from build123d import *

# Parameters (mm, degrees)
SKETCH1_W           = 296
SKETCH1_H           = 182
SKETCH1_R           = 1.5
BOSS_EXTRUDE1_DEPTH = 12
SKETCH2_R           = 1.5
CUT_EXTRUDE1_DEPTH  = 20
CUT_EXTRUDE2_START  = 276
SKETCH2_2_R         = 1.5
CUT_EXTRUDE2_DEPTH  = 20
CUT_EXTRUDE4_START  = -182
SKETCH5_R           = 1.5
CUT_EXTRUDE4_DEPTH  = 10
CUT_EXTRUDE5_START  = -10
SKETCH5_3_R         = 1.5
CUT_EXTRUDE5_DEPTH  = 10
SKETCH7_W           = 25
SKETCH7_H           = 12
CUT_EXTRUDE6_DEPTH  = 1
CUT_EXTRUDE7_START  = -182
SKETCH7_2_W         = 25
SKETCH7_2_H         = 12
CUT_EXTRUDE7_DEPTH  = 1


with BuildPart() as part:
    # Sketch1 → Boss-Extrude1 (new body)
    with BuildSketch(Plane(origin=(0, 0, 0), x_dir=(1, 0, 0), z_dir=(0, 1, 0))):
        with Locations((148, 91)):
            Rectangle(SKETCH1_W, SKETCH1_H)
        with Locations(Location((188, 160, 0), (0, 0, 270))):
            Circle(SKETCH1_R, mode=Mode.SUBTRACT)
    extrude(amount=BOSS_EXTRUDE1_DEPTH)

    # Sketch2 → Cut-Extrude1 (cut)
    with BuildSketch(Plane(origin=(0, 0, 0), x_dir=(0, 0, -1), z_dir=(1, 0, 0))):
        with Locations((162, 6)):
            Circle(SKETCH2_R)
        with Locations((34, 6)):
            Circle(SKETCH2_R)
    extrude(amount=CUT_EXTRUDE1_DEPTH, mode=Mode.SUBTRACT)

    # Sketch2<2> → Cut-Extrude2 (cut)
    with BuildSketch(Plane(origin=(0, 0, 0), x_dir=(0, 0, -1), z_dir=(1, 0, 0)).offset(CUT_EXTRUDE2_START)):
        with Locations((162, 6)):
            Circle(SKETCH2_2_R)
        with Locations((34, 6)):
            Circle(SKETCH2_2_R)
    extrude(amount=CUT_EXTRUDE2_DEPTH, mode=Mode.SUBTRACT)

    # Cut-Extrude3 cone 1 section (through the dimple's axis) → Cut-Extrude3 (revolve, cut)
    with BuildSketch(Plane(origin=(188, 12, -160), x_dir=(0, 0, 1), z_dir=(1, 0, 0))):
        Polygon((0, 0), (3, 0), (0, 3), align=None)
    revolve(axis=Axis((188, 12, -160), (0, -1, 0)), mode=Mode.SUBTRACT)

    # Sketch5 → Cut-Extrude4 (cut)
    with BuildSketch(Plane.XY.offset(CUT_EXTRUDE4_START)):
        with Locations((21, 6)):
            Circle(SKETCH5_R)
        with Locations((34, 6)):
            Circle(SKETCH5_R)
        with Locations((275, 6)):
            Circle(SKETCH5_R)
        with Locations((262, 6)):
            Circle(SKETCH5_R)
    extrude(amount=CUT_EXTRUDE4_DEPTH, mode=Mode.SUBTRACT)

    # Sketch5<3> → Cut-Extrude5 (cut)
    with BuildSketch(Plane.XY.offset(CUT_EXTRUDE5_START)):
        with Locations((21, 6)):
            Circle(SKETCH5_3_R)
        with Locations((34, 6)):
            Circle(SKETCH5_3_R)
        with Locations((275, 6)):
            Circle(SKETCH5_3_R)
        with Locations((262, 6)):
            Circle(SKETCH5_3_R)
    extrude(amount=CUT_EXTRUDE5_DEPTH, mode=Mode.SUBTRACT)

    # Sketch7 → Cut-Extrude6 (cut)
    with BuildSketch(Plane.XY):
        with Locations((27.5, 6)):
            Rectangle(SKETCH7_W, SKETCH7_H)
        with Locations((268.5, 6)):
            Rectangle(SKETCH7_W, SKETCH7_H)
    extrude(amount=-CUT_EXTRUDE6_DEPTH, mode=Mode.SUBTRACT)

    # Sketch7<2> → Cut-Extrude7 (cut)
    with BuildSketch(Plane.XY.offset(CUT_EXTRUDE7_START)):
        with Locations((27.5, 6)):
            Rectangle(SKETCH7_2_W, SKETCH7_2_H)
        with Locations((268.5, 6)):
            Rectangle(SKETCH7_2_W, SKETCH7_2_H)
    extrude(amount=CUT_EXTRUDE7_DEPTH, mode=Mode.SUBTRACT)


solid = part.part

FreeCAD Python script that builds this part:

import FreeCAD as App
import Part
import Sketcher

doc = App.newDocument("Part")
params = doc.addObject("Spreadsheet::Sheet", "Params")
for row, (alias, value) in enumerate([
    ("sketch1_diameter", "3 mm"),
    ("sketch1_width", "296 mm"),
    ("sketch1_height", "182 mm"),
    ("pad1_length", "12 mm"),
    ("sketch2_diameter", "3 mm"),
    ("pocket1_length", "20 mm"),
    ("sketch3_diameter", "3 mm"),
    ("pocket2_length", "20 mm"),
    ("sketch4_width", "3 mm"),
    ("groove_angle", "360 deg"),
    ("sketch5_diameter", "3 mm"),
    ("pocket3_length", "10 mm"),
    ("sketch6_diameter", "3 mm"),
    ("pocket4_length", "10 mm"),
    ("sketch7_width", "25 mm"),
    ("sketch7_height", "12 mm"),
    ("pocket5_length", "1 mm"),
    ("sketch8_width", "25 mm"),
    ("sketch8_height", "12 mm"),
    ("pocket6_length", "1 mm"),
], start=1):
    params.set(f"A{row}", alias)
    params.set(f"B{row}", "=" + value)
    params.setAlias(f"B{row}", alias)

body = doc.addObject("PartDesign::Body", "Body")

# Sketch on XZ plane
sketch1 = body.newObject("Sketcher::SketchObject", "Sketch")
sketch1.AttachmentSupport = (doc.getObject("XZ_Plane"), [""])
sketch1.MapMode = "FlatFace"
sketch1.addGeometry(Part.LineSegment(App.Vector(0, -182, 0), App.Vector(0, 0, 0)), False)
sketch1.addGeometry(Part.LineSegment(App.Vector(0, 0, 0), App.Vector(296, 0, 0)), False)
sketch1.addGeometry(Part.LineSegment(App.Vector(296, 0, 0), App.Vector(296, -182, 0)), False)
sketch1.addGeometry(Part.LineSegment(App.Vector(296, -182, 0), App.Vector(0, -182, 0)), False)
sketch1.addGeometry(Part.Circle(App.Vector(188, -160, 0), App.Vector(0, 0, 1), 1.5), False)
sketch1.addConstraint(Sketcher.Constraint("Coincident", 0, 2, 1, 1))
sketch1.addConstraint(Sketcher.Constraint("Coincident", 1, 2, 2, 1))
sketch1.addConstraint(Sketcher.Constraint("Coincident", 2, 2, 3, 1))
sketch1.addConstraint(Sketcher.Constraint("Coincident", 3, 2, 0, 1))
sketch1.addConstraint(Sketcher.Constraint("Vertical", 0))
sketch1.addConstraint(Sketcher.Constraint("Horizontal", 1))
sketch1.addConstraint(Sketcher.Constraint("Vertical", 2))
sketch1.addConstraint(Sketcher.Constraint("Horizontal", 3))
sketch1.addConstraint(Sketcher.Constraint("Coincident", 0, 2, -1, 1))
sketch1.addConstraint(Sketcher.Constraint("Diameter", 4, 3.0))
sketch1.addConstraint(Sketcher.Constraint("DistanceX", 1, 1, 1, 2, 296.0))
sketch1.addConstraint(Sketcher.Constraint("DistanceY", 0, 1, 0, 2, 182.0))
sketch1.addConstraint(Sketcher.Constraint("DistanceX", -1, 1, 4, 3, 188.0))
sketch1.addConstraint(Sketcher.Constraint("DistanceY", 4, 3, -1, 1, 160.0))
sketch1.setExpression("Constraints[9]", "Params.sketch1_diameter")
sketch1.setExpression("Constraints[10]", "Params.sketch1_width")
sketch1.setExpression("Constraints[11]", "Params.sketch1_height")
pad1 = body.newObject("PartDesign::Pad", "Pad")
pad1.Profile = sketch1
pad1.setExpression("Length", "Params.pad1_length")
pad1.Reversed = True

# Sketch on YZ plane
sketch2 = body.newObject("Sketcher::SketchObject", "Sketch001")
sketch2.AttachmentSupport = (doc.getObject("YZ_Plane"), [""])
sketch2.MapMode = "FlatFace"
sketch2.addGeometry(Part.Circle(App.Vector(6, -162, 0), App.Vector(0, 0, 1), 1.5), False)
sketch2.addGeometry(Part.Circle(App.Vector(6, -34, 0), App.Vector(0, 0, 1), 1.5), False)
sketch2.addConstraint(Sketcher.Constraint("Equal", 0, 1))
sketch2.addConstraint(Sketcher.Constraint("Vertical", 0, 3, 1, 3))
sketch2.addConstraint(Sketcher.Constraint("Diameter", 0, 3.0))
sketch2.addConstraint(Sketcher.Constraint("DistanceX", -1, 1, 0, 3, 6.0))
sketch2.addConstraint(Sketcher.Constraint("DistanceY", 0, 3, -1, 1, 162.0))
sketch2.addConstraint(Sketcher.Constraint("DistanceY", 1, 3, -1, 1, 34.0))
sketch2.setExpression("Constraints[2]", "Params.sketch2_diameter")
pocket1 = body.newObject("PartDesign::Pocket", "Pocket")
pocket1.Profile = sketch2
pocket1.setExpression("Length", "Params.pocket1_length")
pocket1.Reversed = True

# Sketch on YZ plane
sketch3 = body.newObject("Sketcher::SketchObject", "Sketch002")
sketch3.AttachmentSupport = (doc.getObject("YZ_Plane"), [""])
sketch3.MapMode = "FlatFace"
sketch3.AttachmentOffset = App.Placement(App.Vector(0, 0, 276), App.Rotation())
sketch3.addGeometry(Part.Circle(App.Vector(6, -162, 0), App.Vector(0, 0, 1), 1.5), False)
sketch3.addGeometry(Part.Circle(App.Vector(6, -34, 0), App.Vector(0, 0, 1), 1.5), False)
sketch3.addConstraint(Sketcher.Constraint("Equal", 0, 1))
sketch3.addConstraint(Sketcher.Constraint("Vertical", 0, 3, 1, 3))
sketch3.addConstraint(Sketcher.Constraint("Diameter", 0, 3.0))
sketch3.addConstraint(Sketcher.Constraint("DistanceX", -1, 1, 0, 3, 6.0))
sketch3.addConstraint(Sketcher.Constraint("DistanceY", 0, 3, -1, 1, 162.0))
sketch3.addConstraint(Sketcher.Constraint("DistanceY", 1, 3, -1, 1, 34.0))
sketch3.setExpression("Constraints[2]", "Params.sketch3_diameter")
pocket2 = body.newObject("PartDesign::Pocket", "Pocket001")
pocket2.Profile = sketch3
pocket2.setExpression("Length", "Params.pocket2_length")
pocket2.Reversed = True

# Sketch on YZ plane
sketch4 = body.newObject("Sketcher::SketchObject", "Sketch003")
sketch4.AttachmentSupport = (doc.getObject("YZ_Plane"), [""])
sketch4.MapMode = "FlatFace"
sketch4.AttachmentOffset = App.Placement(App.Vector(0, 0, 188), App.Rotation())
sketch4.addGeometry(Part.LineSegment(App.Vector(12, -160, 0), App.Vector(12, -157, 0)), False)
sketch4.addGeometry(Part.LineSegment(App.Vector(12, -157, 0), App.Vector(9, -160, 0)), False)
sketch4.addGeometry(Part.LineSegment(App.Vector(9, -160, 0), App.Vector(12, -160, 0)), False)
sketch4.addGeometry(Part.LineSegment(App.Vector(12, -160, 0), App.Vector(9, -160, 0)), True)  # axis
sketch4.addConstraint(Sketcher.Constraint("Coincident", 0, 2, 1, 1))
sketch4.addConstraint(Sketcher.Constraint("Coincident", 1, 2, 2, 1))
sketch4.addConstraint(Sketcher.Constraint("Coincident", 2, 2, 0, 1))
sketch4.addConstraint(Sketcher.Constraint("Vertical", 0))
sketch4.addConstraint(Sketcher.Constraint("Horizontal", 2))
sketch4.addConstraint(Sketcher.Constraint("Horizontal", 3))
sketch4.addConstraint(Sketcher.Constraint("Coincident", 3, 1, 2, 2))
sketch4.addConstraint(Sketcher.Constraint("Equal", 2, 3))
sketch4.addConstraint(Sketcher.Constraint("Equal", 3, 0))
sketch4.addConstraint(Sketcher.Constraint("DistanceX", 2, 1, 2, 2, 3.0))
sketch4.addConstraint(Sketcher.Constraint("DistanceX", -1, 1, 0, 2, 12.0))
sketch4.addConstraint(Sketcher.Constraint("DistanceY", 0, 2, -1, 1, 157.0))
sketch4.setExpression("Constraints[9]", "Params.sketch4_width")
groove = body.newObject("PartDesign::Groove", "Groove")
groove.Profile = sketch4
groove.ReferenceAxis = (sketch4, ["Axis0"])
groove.setExpression("Angle", "Params.groove_angle")

# Sketch on XY plane
sketch5 = body.newObject("Sketcher::SketchObject", "Sketch004")
sketch5.AttachmentSupport = (doc.getObject("XY_Plane"), [""])
sketch5.MapMode = "FlatFace"
sketch5.AttachmentOffset = App.Placement(App.Vector(0, 0, -182), App.Rotation())
sketch5.addGeometry(Part.Circle(App.Vector(21, 6, 0), App.Vector(0, 0, 1), 1.5), False)
sketch5.addGeometry(Part.Circle(App.Vector(34, 6, 0), App.Vector(0, 0, 1), 1.5), False)
sketch5.addGeometry(Part.Circle(App.Vector(275, 6, 0), App.Vector(0, 0, 1), 1.5), False)
sketch5.addGeometry(Part.Circle(App.Vector(262, 6, 0), App.Vector(0, 0, 1), 1.5), False)
sketch5.addConstraint(Sketcher.Constraint("Equal", 0, 1))
sketch5.addConstraint(Sketcher.Constraint("Equal", 1, 2))
sketch5.addConstraint(Sketcher.Constraint("Equal", 2, 3))
sketch5.addConstraint(Sketcher.Constraint("Horizontal", 0, 3, 1, 3))
sketch5.addConstraint(Sketcher.Constraint("Horizontal", 1, 3, 2, 3))
sketch5.addConstraint(Sketcher.Constraint("Horizontal", 2, 3, 3, 3))
sketch5.addConstraint(Sketcher.Constraint("Diameter", 0, 3.0))
sketch5.addConstraint(Sketcher.Constraint("DistanceX", -1, 1, 0, 3, 21.0))
sketch5.addConstraint(Sketcher.Constraint("DistanceY", -1, 1, 0, 3, 6.0))
sketch5.addConstraint(Sketcher.Constraint("DistanceX", -1, 1, 1, 3, 34.0))
sketch5.addConstraint(Sketcher.Constraint("DistanceX", -1, 1, 2, 3, 275.0))
sketch5.addConstraint(Sketcher.Constraint("DistanceX", -1, 1, 3, 3, 262.0))
sketch5.setExpression("Constraints[6]", "Params.sketch5_diameter")
pocket3 = body.newObject("PartDesign::Pocket", "Pocket002")
pocket3.Profile = sketch5
pocket3.setExpression("Length", "Params.pocket3_length")
pocket3.Reversed = True

# Sketch on XY plane
sketch6 = body.newObject("Sketcher::SketchObject", "Sketch005")
sketch6.AttachmentSupport = (doc.getObject("XY_Plane"), [""])
sketch6.MapMode = "FlatFace"
sketch6.AttachmentOffset = App.Placement(App.Vector(0, 0, -10), App.Rotation())
sketch6.addGeometry(Part.Circle(App.Vector(21, 6, 0), App.Vector(0, 0, 1), 1.5), False)
sketch6.addGeometry(Part.Circle(App.Vector(34, 6, 0), App.Vector(0, 0, 1), 1.5), False)
sketch6.addGeometry(Part.Circle(App.Vector(275, 6, 0), App.Vector(0, 0, 1), 1.5), False)
sketch6.addGeometry(Part.Circle(App.Vector(262, 6, 0), App.Vector(0, 0, 1), 1.5), False)
sketch6.addConstraint(Sketcher.Constraint("Equal", 0, 1))
sketch6.addConstraint(Sketcher.Constraint("Equal", 1, 2))
sketch6.addConstraint(Sketcher.Constraint("Equal", 2, 3))
sketch6.addConstraint(Sketcher.Constraint("Horizontal", 0, 3, 1, 3))
sketch6.addConstraint(Sketcher.Constraint("Horizontal", 1, 3, 2, 3))
sketch6.addConstraint(Sketcher.Constraint("Horizontal", 2, 3, 3, 3))
sketch6.addConstraint(Sketcher.Constraint("Diameter", 0, 3.0))
sketch6.addConstraint(Sketcher.Constraint("DistanceX", -1, 1, 0, 3, 21.0))
sketch6.addConstraint(Sketcher.Constraint("DistanceY", -1, 1, 0, 3, 6.0))
sketch6.addConstraint(Sketcher.Constraint("DistanceX", -1, 1, 1, 3, 34.0))
sketch6.addConstraint(Sketcher.Constraint("DistanceX", -1, 1, 2, 3, 275.0))
sketch6.addConstraint(Sketcher.Constraint("DistanceX", -1, 1, 3, 3, 262.0))
sketch6.setExpression("Constraints[6]", "Params.sketch6_diameter")
pocket4 = body.newObject("PartDesign::Pocket", "Pocket003")
pocket4.Profile = sketch6
pocket4.setExpression("Length", "Params.pocket4_length")
pocket4.Reversed = True

# Sketch on XY plane
sketch7 = body.newObject("Sketcher::SketchObject", "Sketch006")
sketch7.AttachmentSupport = (doc.getObject("XY_Plane"), [""])
sketch7.MapMode = "FlatFace"
sketch7.addGeometry(Part.LineSegment(App.Vector(15, 12, 0), App.Vector(15, 0, 0)), False)
sketch7.addGeometry(Part.LineSegment(App.Vector(15, 0, 0), App.Vector(40, 0, 0)), False)
sketch7.addGeometry(Part.LineSegment(App.Vector(40, 0, 0), App.Vector(40, 12, 0)), False)
sketch7.addGeometry(Part.LineSegment(App.Vector(40, 12, 0), App.Vector(15, 12, 0)), False)
sketch7.addGeometry(Part.LineSegment(App.Vector(256, 12, 0), App.Vector(256, 0, 0)), False)
sketch7.addGeometry(Part.LineSegment(App.Vector(256, 0, 0), App.Vector(281, 0, 0)), False)
sketch7.addGeometry(Part.LineSegment(App.Vector(281, 0, 0), App.Vector(281, 12, 0)), False)
sketch7.addGeometry(Part.LineSegment(App.Vector(281, 12, 0), App.Vector(256, 12, 0)), False)
sketch7.addConstraint(Sketcher.Constraint("Coincident", 0, 2, 1, 1))
sketch7.addConstraint(Sketcher.Constraint("Coincident", 1, 2, 2, 1))
sketch7.addConstraint(Sketcher.Constraint("Coincident", 2, 2, 3, 1))
sketch7.addConstraint(Sketcher.Constraint("Coincident", 3, 2, 0, 1))
sketch7.addConstraint(Sketcher.Constraint("Coincident", 4, 2, 5, 1))
sketch7.addConstraint(Sketcher.Constraint("Coincident", 5, 2, 6, 1))
sketch7.addConstraint(Sketcher.Constraint("Coincident", 6, 2, 7, 1))
sketch7.addConstraint(Sketcher.Constraint("Coincident", 7, 2, 4, 1))
sketch7.addConstraint(Sketcher.Constraint("Vertical", 0))
sketch7.addConstraint(Sketcher.Constraint("Horizontal", 1))
sketch7.addConstraint(Sketcher.Constraint("Vertical", 2))
sketch7.addConstraint(Sketcher.Constraint("Horizontal", 3))
sketch7.addConstraint(Sketcher.Constraint("Vertical", 4))
sketch7.addConstraint(Sketcher.Constraint("Horizontal", 5))
sketch7.addConstraint(Sketcher.Constraint("Vertical", 6))
sketch7.addConstraint(Sketcher.Constraint("Horizontal", 7))
sketch7.addConstraint(Sketcher.Constraint("PointOnObject", 0, 2, -1))
sketch7.addConstraint(Sketcher.Constraint("PointOnObject", 4, 2, -1))
sketch7.addConstraint(Sketcher.Constraint("Horizontal", 3, 2, 6, 2))
sketch7.addConstraint(Sketcher.Constraint("Equal", 3, 5))
sketch7.addConstraint(Sketcher.Constraint("DistanceX", 1, 1, 1, 2, 25.0))
sketch7.addConstraint(Sketcher.Constraint("DistanceY", 0, 2, 0, 1, 12.0))
sketch7.addConstraint(Sketcher.Constraint("DistanceX", -1, 1, 0, 2, 15.0))
sketch7.addConstraint(Sketcher.Constraint("DistanceX", -1, 1, 4, 2, 256.0))
sketch7.setExpression("Constraints[20]", "Params.sketch7_width")
sketch7.setExpression("Constraints[21]", "Params.sketch7_height")
pocket5 = body.newObject("PartDesign::Pocket", "Pocket004")
pocket5.Profile = sketch7
pocket5.setExpression("Length", "Params.pocket5_length")

# Sketch on XY plane
sketch8 = body.newObject("Sketcher::SketchObject", "Sketch007")
sketch8.AttachmentSupport = (doc.getObject("XY_Plane"), [""])
sketch8.MapMode = "FlatFace"
sketch8.AttachmentOffset = App.Placement(App.Vector(0, 0, -182), App.Rotation())
sketch8.addGeometry(Part.LineSegment(App.Vector(15, 12, 0), App.Vector(15, 0, 0)), False)
sketch8.addGeometry(Part.LineSegment(App.Vector(15, 0, 0), App.Vector(40, 0, 0)), False)
sketch8.addGeometry(Part.LineSegment(App.Vector(40, 0, 0), App.Vector(40, 12, 0)), False)
sketch8.addGeometry(Part.LineSegment(App.Vector(40, 12, 0), App.Vector(15, 12, 0)), False)
sketch8.addGeometry(Part.LineSegment(App.Vector(256, 12, 0), App.Vector(256, 0, 0)), False)
sketch8.addGeometry(Part.LineSegment(App.Vector(256, 0, 0), App.Vector(281, 0, 0)), False)
sketch8.addGeometry(Part.LineSegment(App.Vector(281, 0, 0), App.Vector(281, 12, 0)), False)
sketch8.addGeometry(Part.LineSegment(App.Vector(281, 12, 0), App.Vector(256, 12, 0)), False)
sketch8.addConstraint(Sketcher.Constraint("Coincident", 0, 2, 1, 1))
sketch8.addConstraint(Sketcher.Constraint("Coincident", 1, 2, 2, 1))
sketch8.addConstraint(Sketcher.Constraint("Coincident", 2, 2, 3, 1))
sketch8.addConstraint(Sketcher.Constraint("Coincident", 3, 2, 0, 1))
sketch8.addConstraint(Sketcher.Constraint("Coincident", 4, 2, 5, 1))
sketch8.addConstraint(Sketcher.Constraint("Coincident", 5, 2, 6, 1))
sketch8.addConstraint(Sketcher.Constraint("Coincident", 6, 2, 7, 1))
sketch8.addConstraint(Sketcher.Constraint("Coincident", 7, 2, 4, 1))
sketch8.addConstraint(Sketcher.Constraint("Vertical", 0))
sketch8.addConstraint(Sketcher.Constraint("Horizontal", 1))
sketch8.addConstraint(Sketcher.Constraint("Vertical", 2))
sketch8.addConstraint(Sketcher.Constraint("Horizontal", 3))
sketch8.addConstraint(Sketcher.Constraint("Vertical", 4))
sketch8.addConstraint(Sketcher.Constraint("Horizontal", 5))
sketch8.addConstraint(Sketcher.Constraint("Vertical", 6))
sketch8.addConstraint(Sketcher.Constraint("Horizontal", 7))
sketch8.addConstraint(Sketcher.Constraint("PointOnObject", 0, 2, -1))
sketch8.addConstraint(Sketcher.Constraint("PointOnObject", 4, 2, -1))
sketch8.addConstraint(Sketcher.Constraint("Horizontal", 3, 2, 6, 2))
sketch8.addConstraint(Sketcher.Constraint("Equal", 3, 5))
sketch8.addConstraint(Sketcher.Constraint("DistanceX", 1, 1, 1, 2, 25.0))
sketch8.addConstraint(Sketcher.Constraint("DistanceY", 0, 2, 0, 1, 12.0))
sketch8.addConstraint(Sketcher.Constraint("DistanceX", -1, 1, 0, 2, 15.0))
sketch8.addConstraint(Sketcher.Constraint("DistanceX", -1, 1, 4, 2, 256.0))
sketch8.setExpression("Constraints[20]", "Params.sketch8_width")
sketch8.setExpression("Constraints[21]", "Params.sketch8_height")
pocket6 = body.newObject("PartDesign::Pocket", "Pocket005")
pocket6.Profile = sketch8
pocket6.setExpression("Length", "Params.pocket6_length")
pocket6.Reversed = True

doc.recompute()
